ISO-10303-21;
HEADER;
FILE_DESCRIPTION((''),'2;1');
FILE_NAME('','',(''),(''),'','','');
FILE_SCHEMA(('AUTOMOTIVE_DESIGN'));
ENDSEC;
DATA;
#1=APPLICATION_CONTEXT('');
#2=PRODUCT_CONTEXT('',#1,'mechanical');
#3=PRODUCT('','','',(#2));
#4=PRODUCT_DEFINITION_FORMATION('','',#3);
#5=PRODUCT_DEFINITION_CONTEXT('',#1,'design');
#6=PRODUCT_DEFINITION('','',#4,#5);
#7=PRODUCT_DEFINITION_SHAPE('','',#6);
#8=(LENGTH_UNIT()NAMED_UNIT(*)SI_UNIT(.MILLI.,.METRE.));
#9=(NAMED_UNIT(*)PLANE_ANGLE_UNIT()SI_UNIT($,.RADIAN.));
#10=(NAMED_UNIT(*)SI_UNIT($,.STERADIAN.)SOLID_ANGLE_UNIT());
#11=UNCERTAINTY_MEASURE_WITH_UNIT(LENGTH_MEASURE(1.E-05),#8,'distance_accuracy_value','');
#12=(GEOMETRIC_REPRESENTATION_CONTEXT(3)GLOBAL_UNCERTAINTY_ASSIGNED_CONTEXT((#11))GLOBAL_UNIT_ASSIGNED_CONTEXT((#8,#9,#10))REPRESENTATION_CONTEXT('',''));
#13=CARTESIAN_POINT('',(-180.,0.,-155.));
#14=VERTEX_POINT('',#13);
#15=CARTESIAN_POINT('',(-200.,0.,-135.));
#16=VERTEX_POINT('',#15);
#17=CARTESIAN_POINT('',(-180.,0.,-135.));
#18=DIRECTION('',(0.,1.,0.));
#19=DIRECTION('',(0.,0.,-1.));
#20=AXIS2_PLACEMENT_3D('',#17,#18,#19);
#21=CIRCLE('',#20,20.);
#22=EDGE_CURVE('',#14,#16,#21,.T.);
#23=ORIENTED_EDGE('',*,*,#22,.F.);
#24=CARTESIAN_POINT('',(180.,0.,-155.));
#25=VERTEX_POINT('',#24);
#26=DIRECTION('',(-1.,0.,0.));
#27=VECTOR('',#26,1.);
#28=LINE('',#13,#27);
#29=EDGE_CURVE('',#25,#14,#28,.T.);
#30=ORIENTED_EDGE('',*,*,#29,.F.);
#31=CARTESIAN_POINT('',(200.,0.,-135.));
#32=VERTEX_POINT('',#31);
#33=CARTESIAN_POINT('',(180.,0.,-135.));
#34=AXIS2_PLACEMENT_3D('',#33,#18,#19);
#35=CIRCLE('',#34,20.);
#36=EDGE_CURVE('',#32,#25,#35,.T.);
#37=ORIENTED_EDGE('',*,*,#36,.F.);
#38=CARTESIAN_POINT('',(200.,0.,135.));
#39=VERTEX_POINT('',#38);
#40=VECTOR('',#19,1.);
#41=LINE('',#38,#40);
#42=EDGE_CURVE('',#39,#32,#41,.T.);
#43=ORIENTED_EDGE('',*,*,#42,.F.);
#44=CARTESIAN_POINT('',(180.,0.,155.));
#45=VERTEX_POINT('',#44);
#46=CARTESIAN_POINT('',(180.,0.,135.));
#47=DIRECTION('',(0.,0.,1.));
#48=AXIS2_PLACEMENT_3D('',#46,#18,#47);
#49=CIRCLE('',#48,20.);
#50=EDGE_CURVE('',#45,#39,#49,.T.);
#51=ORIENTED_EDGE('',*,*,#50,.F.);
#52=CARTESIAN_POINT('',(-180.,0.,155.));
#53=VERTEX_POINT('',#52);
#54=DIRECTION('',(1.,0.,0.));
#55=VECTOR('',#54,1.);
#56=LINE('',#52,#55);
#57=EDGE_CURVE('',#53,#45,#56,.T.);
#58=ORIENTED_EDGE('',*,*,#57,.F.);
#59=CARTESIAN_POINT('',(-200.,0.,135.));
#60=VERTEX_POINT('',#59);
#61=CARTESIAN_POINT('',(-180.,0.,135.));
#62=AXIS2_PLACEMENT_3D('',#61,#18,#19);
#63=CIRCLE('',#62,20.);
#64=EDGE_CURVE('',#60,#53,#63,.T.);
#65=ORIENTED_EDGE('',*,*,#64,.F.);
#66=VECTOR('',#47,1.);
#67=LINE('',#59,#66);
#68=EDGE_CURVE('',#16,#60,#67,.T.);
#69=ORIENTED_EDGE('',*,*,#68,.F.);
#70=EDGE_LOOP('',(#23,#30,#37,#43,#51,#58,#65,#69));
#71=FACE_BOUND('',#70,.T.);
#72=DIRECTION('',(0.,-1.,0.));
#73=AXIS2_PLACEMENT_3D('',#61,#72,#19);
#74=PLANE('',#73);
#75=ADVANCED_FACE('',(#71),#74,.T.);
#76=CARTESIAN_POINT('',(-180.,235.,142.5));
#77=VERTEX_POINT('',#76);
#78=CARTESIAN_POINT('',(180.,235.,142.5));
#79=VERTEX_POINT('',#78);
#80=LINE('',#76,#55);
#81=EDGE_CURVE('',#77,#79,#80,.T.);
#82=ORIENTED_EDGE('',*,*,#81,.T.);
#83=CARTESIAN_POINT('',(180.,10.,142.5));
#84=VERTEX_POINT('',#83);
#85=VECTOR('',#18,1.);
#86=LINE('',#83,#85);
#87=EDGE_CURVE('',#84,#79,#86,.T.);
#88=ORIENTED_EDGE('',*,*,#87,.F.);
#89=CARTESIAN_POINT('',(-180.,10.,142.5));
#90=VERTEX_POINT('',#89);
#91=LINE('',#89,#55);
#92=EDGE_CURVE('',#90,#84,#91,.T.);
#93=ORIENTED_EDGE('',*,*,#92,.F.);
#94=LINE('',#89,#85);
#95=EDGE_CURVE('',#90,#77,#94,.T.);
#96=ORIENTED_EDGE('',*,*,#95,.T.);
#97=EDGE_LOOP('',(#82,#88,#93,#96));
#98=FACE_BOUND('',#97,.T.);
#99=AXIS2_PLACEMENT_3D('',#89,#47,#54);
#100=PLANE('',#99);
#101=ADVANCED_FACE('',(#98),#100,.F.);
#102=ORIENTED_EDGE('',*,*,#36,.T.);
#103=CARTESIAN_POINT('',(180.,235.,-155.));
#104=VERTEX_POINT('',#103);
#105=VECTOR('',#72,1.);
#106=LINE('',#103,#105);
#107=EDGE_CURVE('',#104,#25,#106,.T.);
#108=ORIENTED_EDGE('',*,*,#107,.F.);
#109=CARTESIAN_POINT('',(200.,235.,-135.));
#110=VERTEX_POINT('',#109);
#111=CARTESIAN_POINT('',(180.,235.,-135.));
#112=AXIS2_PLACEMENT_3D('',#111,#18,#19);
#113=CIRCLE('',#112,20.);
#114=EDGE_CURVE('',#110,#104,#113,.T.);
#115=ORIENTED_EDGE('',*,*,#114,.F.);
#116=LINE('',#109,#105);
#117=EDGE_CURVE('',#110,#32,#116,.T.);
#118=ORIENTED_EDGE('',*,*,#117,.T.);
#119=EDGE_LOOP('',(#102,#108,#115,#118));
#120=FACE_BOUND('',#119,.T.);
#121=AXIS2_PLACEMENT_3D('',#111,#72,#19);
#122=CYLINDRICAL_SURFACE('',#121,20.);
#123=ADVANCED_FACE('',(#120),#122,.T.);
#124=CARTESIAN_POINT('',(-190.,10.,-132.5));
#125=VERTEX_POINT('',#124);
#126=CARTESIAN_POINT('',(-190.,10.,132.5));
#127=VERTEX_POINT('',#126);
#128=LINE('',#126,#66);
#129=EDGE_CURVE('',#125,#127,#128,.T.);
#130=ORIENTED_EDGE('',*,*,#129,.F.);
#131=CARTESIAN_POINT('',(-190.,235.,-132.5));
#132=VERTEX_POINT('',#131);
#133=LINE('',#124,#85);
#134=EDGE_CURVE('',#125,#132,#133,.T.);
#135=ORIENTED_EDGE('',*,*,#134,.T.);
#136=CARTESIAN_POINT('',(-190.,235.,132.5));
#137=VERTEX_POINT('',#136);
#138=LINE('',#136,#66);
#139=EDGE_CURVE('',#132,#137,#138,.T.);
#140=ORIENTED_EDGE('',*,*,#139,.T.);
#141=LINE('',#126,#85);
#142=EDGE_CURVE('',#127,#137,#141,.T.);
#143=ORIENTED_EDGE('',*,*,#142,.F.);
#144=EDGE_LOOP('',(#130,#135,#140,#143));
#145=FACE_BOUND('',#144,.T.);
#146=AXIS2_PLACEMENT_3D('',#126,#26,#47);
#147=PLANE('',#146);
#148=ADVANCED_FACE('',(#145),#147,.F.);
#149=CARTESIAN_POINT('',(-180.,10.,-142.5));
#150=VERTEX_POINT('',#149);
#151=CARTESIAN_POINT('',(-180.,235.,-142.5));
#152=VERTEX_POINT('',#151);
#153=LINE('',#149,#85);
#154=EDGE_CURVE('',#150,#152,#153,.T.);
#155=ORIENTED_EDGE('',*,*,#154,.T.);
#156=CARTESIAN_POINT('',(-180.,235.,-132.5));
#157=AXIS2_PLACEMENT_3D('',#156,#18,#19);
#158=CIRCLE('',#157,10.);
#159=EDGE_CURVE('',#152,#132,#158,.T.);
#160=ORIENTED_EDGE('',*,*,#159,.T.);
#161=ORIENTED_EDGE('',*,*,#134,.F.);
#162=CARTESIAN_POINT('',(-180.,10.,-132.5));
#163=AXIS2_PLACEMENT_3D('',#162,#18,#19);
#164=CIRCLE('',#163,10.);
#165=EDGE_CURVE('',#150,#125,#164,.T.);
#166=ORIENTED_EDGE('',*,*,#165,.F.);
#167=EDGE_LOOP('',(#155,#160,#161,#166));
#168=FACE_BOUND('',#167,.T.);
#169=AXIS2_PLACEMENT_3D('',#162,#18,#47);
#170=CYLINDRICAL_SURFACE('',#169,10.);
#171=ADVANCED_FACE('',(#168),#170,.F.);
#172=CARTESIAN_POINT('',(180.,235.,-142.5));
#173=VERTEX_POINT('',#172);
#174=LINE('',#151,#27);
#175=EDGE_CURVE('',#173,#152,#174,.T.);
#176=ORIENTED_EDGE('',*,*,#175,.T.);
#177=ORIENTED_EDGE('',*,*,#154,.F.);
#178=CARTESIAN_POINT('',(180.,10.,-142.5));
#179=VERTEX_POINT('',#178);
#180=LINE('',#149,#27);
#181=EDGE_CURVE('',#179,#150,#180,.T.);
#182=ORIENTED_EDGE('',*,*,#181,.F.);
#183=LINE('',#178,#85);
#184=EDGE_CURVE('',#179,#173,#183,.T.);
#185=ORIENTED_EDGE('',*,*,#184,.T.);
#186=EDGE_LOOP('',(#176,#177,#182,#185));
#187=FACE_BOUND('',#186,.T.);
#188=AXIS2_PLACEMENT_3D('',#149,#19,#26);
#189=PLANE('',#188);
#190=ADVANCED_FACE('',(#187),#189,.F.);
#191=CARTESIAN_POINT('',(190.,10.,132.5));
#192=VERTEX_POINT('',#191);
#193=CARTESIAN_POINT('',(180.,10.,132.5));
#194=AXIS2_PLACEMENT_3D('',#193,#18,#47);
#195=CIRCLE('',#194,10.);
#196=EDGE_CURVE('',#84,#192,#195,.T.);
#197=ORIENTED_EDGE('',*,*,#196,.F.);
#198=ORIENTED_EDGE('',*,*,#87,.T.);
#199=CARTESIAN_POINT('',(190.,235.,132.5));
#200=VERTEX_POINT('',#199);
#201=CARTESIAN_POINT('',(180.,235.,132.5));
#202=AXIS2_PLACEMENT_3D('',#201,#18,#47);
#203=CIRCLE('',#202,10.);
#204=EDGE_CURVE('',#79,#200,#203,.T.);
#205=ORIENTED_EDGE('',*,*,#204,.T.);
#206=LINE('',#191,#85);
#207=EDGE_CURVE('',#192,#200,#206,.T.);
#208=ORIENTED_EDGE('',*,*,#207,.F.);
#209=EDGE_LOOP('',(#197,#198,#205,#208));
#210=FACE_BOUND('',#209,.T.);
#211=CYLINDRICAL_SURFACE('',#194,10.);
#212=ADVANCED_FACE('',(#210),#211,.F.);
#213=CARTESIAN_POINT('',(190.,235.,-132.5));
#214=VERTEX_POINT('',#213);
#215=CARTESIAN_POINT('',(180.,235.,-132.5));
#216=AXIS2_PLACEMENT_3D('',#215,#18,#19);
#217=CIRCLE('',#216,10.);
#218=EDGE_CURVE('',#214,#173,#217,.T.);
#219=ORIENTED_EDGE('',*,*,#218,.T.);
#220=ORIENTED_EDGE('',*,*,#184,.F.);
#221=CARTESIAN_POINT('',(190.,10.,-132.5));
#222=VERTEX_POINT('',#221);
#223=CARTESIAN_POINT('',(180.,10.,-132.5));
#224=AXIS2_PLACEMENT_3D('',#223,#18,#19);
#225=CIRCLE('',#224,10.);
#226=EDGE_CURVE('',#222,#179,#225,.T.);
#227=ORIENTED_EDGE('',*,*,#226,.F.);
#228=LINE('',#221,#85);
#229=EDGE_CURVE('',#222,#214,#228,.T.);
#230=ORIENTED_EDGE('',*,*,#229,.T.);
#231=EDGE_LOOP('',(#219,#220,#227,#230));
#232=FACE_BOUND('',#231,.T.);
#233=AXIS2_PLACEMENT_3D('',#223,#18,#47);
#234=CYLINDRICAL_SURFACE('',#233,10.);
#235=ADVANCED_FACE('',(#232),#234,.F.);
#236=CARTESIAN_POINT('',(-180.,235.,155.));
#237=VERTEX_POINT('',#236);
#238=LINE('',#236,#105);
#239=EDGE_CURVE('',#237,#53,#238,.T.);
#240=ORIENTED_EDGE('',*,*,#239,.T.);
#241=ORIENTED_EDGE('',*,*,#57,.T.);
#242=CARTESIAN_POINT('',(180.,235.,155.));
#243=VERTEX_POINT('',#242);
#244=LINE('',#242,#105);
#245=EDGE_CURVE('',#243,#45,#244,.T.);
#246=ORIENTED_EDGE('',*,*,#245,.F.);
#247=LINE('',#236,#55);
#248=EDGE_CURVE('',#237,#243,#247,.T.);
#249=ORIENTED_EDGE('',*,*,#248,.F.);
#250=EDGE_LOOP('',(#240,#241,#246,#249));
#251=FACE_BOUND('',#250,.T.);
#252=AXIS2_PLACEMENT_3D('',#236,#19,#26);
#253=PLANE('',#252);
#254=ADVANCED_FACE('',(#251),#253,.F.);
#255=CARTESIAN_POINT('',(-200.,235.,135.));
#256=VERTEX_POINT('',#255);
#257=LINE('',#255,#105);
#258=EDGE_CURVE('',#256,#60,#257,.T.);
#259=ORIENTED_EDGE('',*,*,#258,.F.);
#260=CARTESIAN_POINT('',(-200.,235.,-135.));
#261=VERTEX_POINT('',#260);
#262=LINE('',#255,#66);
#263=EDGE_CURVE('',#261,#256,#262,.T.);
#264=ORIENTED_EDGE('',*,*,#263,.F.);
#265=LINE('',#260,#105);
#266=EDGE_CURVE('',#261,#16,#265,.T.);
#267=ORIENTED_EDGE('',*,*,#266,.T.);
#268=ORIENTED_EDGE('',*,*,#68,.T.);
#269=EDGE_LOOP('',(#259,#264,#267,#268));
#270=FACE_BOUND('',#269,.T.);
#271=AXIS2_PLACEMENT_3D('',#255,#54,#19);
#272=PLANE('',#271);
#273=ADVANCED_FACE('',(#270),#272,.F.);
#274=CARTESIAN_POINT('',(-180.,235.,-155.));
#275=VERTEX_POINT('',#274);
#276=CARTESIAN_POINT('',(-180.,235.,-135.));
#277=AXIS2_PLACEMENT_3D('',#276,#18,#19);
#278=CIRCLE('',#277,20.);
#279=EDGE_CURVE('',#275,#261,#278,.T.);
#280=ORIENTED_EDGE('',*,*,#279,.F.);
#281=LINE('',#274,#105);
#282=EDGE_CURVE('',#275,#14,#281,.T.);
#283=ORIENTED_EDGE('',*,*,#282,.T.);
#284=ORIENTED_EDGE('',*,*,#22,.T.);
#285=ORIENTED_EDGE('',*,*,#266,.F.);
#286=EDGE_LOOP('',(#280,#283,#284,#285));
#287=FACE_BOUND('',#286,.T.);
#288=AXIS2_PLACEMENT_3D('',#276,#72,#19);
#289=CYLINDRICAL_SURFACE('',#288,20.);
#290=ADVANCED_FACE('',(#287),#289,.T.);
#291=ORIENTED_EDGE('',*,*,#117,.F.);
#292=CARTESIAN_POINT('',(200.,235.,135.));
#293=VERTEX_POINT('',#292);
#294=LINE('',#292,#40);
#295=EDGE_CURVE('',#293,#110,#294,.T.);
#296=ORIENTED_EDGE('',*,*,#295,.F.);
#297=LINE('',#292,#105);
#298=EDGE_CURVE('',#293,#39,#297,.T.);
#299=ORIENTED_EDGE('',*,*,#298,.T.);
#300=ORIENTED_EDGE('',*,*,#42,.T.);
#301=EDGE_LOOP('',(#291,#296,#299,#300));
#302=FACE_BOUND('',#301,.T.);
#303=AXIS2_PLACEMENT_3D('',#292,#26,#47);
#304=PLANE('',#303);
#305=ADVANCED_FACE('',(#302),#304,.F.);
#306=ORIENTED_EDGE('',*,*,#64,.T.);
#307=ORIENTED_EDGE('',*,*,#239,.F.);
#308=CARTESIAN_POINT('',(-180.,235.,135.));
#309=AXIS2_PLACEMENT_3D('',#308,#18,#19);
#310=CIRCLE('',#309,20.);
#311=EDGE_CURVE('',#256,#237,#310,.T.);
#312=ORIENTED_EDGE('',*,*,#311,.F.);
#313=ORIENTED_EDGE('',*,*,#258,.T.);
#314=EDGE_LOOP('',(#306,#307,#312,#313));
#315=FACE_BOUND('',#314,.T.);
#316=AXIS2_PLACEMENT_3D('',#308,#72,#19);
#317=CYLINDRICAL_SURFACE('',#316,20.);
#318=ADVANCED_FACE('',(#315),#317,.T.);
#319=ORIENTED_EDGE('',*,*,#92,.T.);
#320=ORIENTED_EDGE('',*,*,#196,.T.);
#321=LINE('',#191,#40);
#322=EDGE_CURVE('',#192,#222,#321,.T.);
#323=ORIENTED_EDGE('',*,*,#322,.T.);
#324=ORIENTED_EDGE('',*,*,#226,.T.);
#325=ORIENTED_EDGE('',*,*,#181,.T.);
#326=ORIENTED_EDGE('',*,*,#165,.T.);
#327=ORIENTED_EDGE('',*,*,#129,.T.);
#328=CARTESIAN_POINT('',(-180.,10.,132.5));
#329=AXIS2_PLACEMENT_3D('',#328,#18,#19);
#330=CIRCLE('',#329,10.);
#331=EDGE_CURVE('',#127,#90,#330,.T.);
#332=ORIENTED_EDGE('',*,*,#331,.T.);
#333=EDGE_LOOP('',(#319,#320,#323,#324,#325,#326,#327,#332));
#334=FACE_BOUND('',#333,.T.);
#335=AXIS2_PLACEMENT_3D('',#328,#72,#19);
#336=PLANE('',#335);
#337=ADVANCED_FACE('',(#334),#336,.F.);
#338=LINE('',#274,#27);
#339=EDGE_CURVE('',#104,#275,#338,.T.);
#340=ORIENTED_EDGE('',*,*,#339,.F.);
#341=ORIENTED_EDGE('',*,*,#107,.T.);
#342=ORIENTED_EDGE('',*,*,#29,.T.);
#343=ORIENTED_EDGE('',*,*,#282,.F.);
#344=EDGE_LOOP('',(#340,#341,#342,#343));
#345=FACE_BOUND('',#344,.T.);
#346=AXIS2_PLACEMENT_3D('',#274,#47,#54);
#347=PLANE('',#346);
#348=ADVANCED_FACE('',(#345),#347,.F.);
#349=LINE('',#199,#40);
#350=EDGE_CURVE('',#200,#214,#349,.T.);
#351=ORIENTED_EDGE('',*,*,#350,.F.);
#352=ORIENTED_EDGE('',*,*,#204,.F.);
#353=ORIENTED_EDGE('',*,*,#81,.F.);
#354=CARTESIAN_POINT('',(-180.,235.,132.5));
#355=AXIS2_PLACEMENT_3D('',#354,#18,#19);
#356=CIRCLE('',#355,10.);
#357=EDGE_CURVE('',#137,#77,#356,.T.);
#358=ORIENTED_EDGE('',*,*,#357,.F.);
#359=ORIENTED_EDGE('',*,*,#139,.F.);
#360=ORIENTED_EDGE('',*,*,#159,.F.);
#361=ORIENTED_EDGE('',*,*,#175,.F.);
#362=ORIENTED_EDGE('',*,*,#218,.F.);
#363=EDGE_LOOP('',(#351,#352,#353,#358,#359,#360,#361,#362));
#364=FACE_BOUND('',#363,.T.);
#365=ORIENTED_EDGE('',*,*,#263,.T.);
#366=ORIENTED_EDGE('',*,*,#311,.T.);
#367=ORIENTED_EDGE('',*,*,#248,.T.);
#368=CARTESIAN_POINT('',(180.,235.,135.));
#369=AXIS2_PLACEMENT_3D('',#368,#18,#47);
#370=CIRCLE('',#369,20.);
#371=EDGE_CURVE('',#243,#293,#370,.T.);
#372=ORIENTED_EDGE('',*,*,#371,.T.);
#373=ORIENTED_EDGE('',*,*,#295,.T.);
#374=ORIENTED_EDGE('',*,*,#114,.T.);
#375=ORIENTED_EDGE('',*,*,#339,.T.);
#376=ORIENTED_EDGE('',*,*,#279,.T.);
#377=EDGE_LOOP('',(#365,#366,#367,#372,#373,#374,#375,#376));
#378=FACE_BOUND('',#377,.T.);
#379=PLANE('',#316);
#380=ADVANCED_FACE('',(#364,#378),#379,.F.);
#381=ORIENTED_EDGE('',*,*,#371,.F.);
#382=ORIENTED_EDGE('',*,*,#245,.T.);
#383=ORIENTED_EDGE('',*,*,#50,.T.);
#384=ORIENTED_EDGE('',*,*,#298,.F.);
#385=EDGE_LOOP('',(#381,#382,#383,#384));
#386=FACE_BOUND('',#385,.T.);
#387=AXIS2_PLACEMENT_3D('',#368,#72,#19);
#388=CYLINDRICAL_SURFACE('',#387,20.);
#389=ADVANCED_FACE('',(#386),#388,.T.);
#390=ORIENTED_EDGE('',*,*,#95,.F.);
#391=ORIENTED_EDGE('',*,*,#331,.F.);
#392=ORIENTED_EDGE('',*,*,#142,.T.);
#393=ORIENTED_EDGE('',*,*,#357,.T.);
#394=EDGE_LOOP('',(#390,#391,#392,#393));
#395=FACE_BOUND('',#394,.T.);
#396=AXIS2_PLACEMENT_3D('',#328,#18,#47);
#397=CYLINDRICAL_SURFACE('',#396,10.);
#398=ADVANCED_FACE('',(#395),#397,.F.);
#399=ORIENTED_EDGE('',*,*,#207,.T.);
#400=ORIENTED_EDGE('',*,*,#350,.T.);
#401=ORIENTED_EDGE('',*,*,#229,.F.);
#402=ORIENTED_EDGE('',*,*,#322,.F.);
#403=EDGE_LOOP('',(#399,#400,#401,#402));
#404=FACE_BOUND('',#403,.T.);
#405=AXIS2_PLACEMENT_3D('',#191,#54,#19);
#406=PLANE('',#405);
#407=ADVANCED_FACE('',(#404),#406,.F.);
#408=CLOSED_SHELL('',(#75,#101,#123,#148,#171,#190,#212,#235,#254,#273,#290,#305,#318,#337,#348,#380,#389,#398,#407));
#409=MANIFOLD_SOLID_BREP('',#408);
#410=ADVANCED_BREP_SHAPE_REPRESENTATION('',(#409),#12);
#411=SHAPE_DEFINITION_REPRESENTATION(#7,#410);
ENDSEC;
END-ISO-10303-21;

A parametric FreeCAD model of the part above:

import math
import FreeCAD as App
import Part
import Sketcher

V = App.Vector

doc = App.newDocument("Part")
body = doc.addObject("PartDesign::Body", "Body")

# Sketch on XZ plane
sketch1 = doc.addObject("Sketcher::SketchObject", "Sketch")
body.addObject(sketch1)
sketch1.AttachmentSupport = (doc.XZ_Plane, [""])
sketch1.MapMode = "FlatFace"
sketch1.addGeometry([
    Part.LineSegment(V(-180, 155, 0), V(180, 155, 0)),  # 0
    Part.ArcOfCircle(Part.Circle(V(180, 135, 0), V(0, 0, 1), 20), math.radians(0), math.radians(90)),  # 1
    Part.LineSegment(V(200, 135, 0), V(200, -135, 0)),  # 2
    Part.ArcOfCircle(Part.Circle(V(180, -135, 0), V(0, 0, 1), 20), math.radians(-90), math.radians(0)),  # 3
    Part.LineSegment(V(180, -155, 0), V(-180, -155, 0)),  # 4
    Part.ArcOfCircle(Part.Circle(V(-180, -135, 0), V(0, 0, 1), 20), math.radians(180), math.radians(270)),  # 5
    Part.LineSegment(V(-200, -135, 0), V(-200, 135, 0)),  # 6
    Part.ArcOfCircle(Part.Circle(V(-180, 135, 0), V(0, 0, 1), 20), math.radians(90), math.radians(180)),  # 7
], False)
sketch1.addConstraint([
    Sketcher.Constraint("Tangent", 0, 2, 1, 2),
    Sketcher.Constraint("Tangent", 1, 1, 2, 1),
    Sketcher.Constraint("Tangent", 2, 2, 3, 2),
    Sketcher.Constraint("Tangent", 3, 1, 4, 1),
    Sketcher.Constraint("Tangent", 4, 2, 5, 2),
    Sketcher.Constraint("Tangent", 5, 1, 6, 1),
    Sketcher.Constraint("Tangent", 6, 2, 7, 2),
    Sketcher.Constraint("Tangent", 7, 1, 0, 1),
    Sketcher.Constraint("Horizontal", 0),
    Sketcher.Constraint("Vertical", 2),
    Sketcher.Constraint("Horizontal", 4),
    Sketcher.Constraint("Vertical", 6),
    Sketcher.Constraint("Equal", 1, 3),
    Sketcher.Constraint("Equal", 3, 5),
    Sketcher.Constraint("Equal", 5, 7),
    Sketcher.Constraint("Symmetric", 1, 3, 5, 3, -1, 1),
    Sketcher.Constraint("Radius", 1, 20.0),
    Sketcher.Constraint("DistanceX", 0, 1, 0, 2, 360.0),
    Sketcher.Constraint("DistanceY", 2, 2, 2, 1, 270.0),
])
pad1 = doc.addObject("PartDesign::Pad", "Pad")
body.addObject(pad1)
pad1.Profile = sketch1
pad1.Length = 235
pad1.Reversed = True

# Sketch on XZ plane
sketch2 = doc.addObject("Sketcher::SketchObject", "Sketch001")
body.addObject(sketch2)
sketch2.AttachmentSupport = (doc.XZ_Plane, [""])
sketch2.MapMode = "FlatFace"
sketch2.AttachmentOffset = App.Placement(V(0, 0, -235), App.Rotation())
sketch2.addGeometry([
    Part.LineSegment(V(-180, 142.5, 0), V(180, 142.5, 0)),  # 0
    Part.ArcOfCircle(Part.Circle(V(180, 132.5, 0), V(0, 0, 1), 10), math.radians(0), math.radians(90)),  # 1
    Part.LineSegment(V(190, 132.5, 0), V(190, -132.5, 0)),  # 2
    Part.ArcOfCircle(Part.Circle(V(180, -132.5, 0), V(0, 0, 1), 10), math.radians(-90), math.radians(0)),  # 3
    Part.LineSegment(V(180, -142.5, 0), V(-180, -142.5, 0)),  # 4
    Part.ArcOfCircle(Part.Circle(V(-180, -132.5, 0), V(0, 0, 1), 10), math.radians(180), math.radians(270)),  # 5
    Part.LineSegment(V(-190, -132.5, 0), V(-190, 132.5, 0)),  # 6
    Part.ArcOfCircle(Part.Circle(V(-180, 132.5, 0), V(0, 0, 1), 10), math.radians(90), math.radians(180)),  # 7
], False)
sketch2.addConstraint([
    Sketcher.Constraint("Tangent", 0, 2, 1, 2),
    Sketcher.Constraint("Tangent", 1, 1, 2, 1),
    Sketcher.Constraint("Tangent", 2, 2, 3, 2),
    Sketcher.Constraint("Tangent", 3, 1, 4, 1),
    Sketcher.Constraint("Tangent", 4, 2, 5, 2),
    Sketcher.Constraint("Tangent", 5, 1, 6, 1),
    Sketcher.Constraint("Tangent", 6, 2, 7, 2),
    Sketcher.Constraint("Tangent", 7, 1, 0, 1),
    Sketcher.Constraint("Horizontal", 0),
    Sketcher.Constraint("Vertical", 2),
    Sketcher.Constraint("Horizontal", 4),
    Sketcher.Constraint("Vertical", 6),
    Sketcher.Constraint("Equal", 1, 3),
    Sketcher.Constraint("Equal", 3, 5),
    Sketcher.Constraint("Equal", 5, 7),
    Sketcher.Constraint("Symmetric", 1, 3, 5, 3, -1, 1),
    Sketcher.Constraint("Radius", 1, 10.0),
    Sketcher.Constraint("DistanceX", 0, 1, 0, 2, 360.0),
    Sketcher.Constraint("DistanceY", 2, 2, 2, 1, 265.0),
])
pocket1 = doc.addObject("PartDesign::Pocket", "Pocket")
body.addObject(pocket1)
pocket1.Profile = sketch2
pocket1.Length = 225
pocket1.Reversed = True

doc.recompute()
